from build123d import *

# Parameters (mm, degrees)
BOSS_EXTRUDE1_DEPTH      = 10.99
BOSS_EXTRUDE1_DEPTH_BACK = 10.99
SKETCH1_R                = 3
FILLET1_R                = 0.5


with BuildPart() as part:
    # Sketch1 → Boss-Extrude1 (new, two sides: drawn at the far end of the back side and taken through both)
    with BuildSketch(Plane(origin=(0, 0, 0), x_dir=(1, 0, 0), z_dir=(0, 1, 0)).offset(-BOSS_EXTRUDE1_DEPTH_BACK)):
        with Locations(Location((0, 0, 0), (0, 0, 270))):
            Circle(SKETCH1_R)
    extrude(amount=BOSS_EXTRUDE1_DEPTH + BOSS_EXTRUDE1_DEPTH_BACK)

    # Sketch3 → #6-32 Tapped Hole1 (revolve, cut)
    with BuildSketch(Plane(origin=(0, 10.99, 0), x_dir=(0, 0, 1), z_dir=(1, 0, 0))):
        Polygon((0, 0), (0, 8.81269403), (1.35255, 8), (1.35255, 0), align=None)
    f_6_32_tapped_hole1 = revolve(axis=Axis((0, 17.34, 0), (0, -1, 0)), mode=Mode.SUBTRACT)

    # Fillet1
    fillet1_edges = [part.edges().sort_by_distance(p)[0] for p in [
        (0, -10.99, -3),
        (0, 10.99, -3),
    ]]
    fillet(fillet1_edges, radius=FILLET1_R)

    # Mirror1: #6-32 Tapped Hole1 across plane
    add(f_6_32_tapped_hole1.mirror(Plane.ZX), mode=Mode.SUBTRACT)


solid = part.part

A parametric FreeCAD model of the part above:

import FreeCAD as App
import Part
import Sketcher

V = App.Vector
Q = App.Units.Quantity


def edges_at(feature, points):
    """Names of the edges that pass closest to the given points."""
    edges = feature.Shape.Edges
    near = lambda p: min(range(len(edges)), key=lambda i: edges[i].distToShape(Part.Vertex(*p))[0])
    return sorted({f"Edge{near(p) + 1}" for p in points})

doc = App.newDocument("Part")
body = doc.addObject("PartDesign::Body", "Body")

# Sketch on XZ plane
sketch1 = body.newObject("Sketcher::SketchObject", "Sketch")
sketch1.AttachmentSupport = (doc.getObject("XZ_Plane"), [""])
sketch1.MapMode = "FlatFace"
sketch1.addGeometry(Part.Circle(V(0, 0, 0), V(0, 0, 1), 3), False)
sketch1.addConstraint([
    Sketcher.Constraint("Coincident", 0, 3, -1, 1),
    Sketcher.Constraint("Diameter", 0, 6.0),
])
pad1 = body.newObject("PartDesign::Pad", "Pad")
pad1.Profile = sketch1
pad1.Type = "TwoLengths"
pad1.Length = 10.99
pad1.Length2 = 10.99
pad1.Reversed = True

# Sketch on YZ plane
sketch2 = body.newObject("Sketcher::SketchObject", "Sketch001")
sketch2.AttachmentSupport = (doc.getObject("YZ_Plane"), [""])
sketch2.MapMode = "FlatFace"
sketch2.addGeometry([
    Part.LineSegment(V(2.177306, 0, 0), V(10.99, 0, 0)),
    Part.LineSegment(V(10.99, 0, 0), V(10.99, 1.35255, 0)),
    Part.LineSegment(V(10.99, 1.35255, 0), V(2.99, 1.35255, 0)),
    Part.LineSegment(V(2.99, 1.35255, 0), V(2.177306, 0, 0)),
], False)
sketch2.addConstraint([
    Sketcher.Constraint("Coincident", 0, 2, 1, 1),
    Sketcher.Constraint("Coincident", 1, 2, 2, 1),
    Sketcher.Constraint("Coincident", 2, 2, 3, 1),
    Sketcher.Constraint("Coincident", 3, 2, 0, 1),
    Sketcher.Constraint("Horizontal", 0),
    Sketcher.Constraint("Vertical", 1),
    Sketcher.Constraint("Horizontal", 2),
    Sketcher.Constraint("PointOnObject", 0, 2, -1),
    Sketcher.Constraint("DistanceX", 2, 2, 2, 1, 8.0),
    Sketcher.Constraint("Angle", 3, Q("-121 deg")),
    Sketcher.Constraint("DistanceX", -1, 1, 0, 2, 10.99),
    Sketcher.Constraint("DistanceY", 1, 1, 1, 2, 1.35255),
])
groove = body.newObject("PartDesign::Groove", "Groove")
groove.Profile = sketch2
groove.ReferenceAxis = (sketch2, ["H_Axis"])
groove.Angle = 360
doc.recompute()

fillet = body.newObject("PartDesign::Fillet", "Fillet")
fillet.Base = (groove, edges_at(groove, [(0, -10.99, -3), (0, 10.99, -3)]))
fillet.Radius = 0.5
doc.recompute()

mirrored = body.newObject("PartDesign::Mirrored", "Mirrored")
mirrored.Originals = [groove]
mirrored.MirrorPlane = (doc.getObject("XZ_Plane"), [""])
body.Tip = mirrored

doc.recompute()
